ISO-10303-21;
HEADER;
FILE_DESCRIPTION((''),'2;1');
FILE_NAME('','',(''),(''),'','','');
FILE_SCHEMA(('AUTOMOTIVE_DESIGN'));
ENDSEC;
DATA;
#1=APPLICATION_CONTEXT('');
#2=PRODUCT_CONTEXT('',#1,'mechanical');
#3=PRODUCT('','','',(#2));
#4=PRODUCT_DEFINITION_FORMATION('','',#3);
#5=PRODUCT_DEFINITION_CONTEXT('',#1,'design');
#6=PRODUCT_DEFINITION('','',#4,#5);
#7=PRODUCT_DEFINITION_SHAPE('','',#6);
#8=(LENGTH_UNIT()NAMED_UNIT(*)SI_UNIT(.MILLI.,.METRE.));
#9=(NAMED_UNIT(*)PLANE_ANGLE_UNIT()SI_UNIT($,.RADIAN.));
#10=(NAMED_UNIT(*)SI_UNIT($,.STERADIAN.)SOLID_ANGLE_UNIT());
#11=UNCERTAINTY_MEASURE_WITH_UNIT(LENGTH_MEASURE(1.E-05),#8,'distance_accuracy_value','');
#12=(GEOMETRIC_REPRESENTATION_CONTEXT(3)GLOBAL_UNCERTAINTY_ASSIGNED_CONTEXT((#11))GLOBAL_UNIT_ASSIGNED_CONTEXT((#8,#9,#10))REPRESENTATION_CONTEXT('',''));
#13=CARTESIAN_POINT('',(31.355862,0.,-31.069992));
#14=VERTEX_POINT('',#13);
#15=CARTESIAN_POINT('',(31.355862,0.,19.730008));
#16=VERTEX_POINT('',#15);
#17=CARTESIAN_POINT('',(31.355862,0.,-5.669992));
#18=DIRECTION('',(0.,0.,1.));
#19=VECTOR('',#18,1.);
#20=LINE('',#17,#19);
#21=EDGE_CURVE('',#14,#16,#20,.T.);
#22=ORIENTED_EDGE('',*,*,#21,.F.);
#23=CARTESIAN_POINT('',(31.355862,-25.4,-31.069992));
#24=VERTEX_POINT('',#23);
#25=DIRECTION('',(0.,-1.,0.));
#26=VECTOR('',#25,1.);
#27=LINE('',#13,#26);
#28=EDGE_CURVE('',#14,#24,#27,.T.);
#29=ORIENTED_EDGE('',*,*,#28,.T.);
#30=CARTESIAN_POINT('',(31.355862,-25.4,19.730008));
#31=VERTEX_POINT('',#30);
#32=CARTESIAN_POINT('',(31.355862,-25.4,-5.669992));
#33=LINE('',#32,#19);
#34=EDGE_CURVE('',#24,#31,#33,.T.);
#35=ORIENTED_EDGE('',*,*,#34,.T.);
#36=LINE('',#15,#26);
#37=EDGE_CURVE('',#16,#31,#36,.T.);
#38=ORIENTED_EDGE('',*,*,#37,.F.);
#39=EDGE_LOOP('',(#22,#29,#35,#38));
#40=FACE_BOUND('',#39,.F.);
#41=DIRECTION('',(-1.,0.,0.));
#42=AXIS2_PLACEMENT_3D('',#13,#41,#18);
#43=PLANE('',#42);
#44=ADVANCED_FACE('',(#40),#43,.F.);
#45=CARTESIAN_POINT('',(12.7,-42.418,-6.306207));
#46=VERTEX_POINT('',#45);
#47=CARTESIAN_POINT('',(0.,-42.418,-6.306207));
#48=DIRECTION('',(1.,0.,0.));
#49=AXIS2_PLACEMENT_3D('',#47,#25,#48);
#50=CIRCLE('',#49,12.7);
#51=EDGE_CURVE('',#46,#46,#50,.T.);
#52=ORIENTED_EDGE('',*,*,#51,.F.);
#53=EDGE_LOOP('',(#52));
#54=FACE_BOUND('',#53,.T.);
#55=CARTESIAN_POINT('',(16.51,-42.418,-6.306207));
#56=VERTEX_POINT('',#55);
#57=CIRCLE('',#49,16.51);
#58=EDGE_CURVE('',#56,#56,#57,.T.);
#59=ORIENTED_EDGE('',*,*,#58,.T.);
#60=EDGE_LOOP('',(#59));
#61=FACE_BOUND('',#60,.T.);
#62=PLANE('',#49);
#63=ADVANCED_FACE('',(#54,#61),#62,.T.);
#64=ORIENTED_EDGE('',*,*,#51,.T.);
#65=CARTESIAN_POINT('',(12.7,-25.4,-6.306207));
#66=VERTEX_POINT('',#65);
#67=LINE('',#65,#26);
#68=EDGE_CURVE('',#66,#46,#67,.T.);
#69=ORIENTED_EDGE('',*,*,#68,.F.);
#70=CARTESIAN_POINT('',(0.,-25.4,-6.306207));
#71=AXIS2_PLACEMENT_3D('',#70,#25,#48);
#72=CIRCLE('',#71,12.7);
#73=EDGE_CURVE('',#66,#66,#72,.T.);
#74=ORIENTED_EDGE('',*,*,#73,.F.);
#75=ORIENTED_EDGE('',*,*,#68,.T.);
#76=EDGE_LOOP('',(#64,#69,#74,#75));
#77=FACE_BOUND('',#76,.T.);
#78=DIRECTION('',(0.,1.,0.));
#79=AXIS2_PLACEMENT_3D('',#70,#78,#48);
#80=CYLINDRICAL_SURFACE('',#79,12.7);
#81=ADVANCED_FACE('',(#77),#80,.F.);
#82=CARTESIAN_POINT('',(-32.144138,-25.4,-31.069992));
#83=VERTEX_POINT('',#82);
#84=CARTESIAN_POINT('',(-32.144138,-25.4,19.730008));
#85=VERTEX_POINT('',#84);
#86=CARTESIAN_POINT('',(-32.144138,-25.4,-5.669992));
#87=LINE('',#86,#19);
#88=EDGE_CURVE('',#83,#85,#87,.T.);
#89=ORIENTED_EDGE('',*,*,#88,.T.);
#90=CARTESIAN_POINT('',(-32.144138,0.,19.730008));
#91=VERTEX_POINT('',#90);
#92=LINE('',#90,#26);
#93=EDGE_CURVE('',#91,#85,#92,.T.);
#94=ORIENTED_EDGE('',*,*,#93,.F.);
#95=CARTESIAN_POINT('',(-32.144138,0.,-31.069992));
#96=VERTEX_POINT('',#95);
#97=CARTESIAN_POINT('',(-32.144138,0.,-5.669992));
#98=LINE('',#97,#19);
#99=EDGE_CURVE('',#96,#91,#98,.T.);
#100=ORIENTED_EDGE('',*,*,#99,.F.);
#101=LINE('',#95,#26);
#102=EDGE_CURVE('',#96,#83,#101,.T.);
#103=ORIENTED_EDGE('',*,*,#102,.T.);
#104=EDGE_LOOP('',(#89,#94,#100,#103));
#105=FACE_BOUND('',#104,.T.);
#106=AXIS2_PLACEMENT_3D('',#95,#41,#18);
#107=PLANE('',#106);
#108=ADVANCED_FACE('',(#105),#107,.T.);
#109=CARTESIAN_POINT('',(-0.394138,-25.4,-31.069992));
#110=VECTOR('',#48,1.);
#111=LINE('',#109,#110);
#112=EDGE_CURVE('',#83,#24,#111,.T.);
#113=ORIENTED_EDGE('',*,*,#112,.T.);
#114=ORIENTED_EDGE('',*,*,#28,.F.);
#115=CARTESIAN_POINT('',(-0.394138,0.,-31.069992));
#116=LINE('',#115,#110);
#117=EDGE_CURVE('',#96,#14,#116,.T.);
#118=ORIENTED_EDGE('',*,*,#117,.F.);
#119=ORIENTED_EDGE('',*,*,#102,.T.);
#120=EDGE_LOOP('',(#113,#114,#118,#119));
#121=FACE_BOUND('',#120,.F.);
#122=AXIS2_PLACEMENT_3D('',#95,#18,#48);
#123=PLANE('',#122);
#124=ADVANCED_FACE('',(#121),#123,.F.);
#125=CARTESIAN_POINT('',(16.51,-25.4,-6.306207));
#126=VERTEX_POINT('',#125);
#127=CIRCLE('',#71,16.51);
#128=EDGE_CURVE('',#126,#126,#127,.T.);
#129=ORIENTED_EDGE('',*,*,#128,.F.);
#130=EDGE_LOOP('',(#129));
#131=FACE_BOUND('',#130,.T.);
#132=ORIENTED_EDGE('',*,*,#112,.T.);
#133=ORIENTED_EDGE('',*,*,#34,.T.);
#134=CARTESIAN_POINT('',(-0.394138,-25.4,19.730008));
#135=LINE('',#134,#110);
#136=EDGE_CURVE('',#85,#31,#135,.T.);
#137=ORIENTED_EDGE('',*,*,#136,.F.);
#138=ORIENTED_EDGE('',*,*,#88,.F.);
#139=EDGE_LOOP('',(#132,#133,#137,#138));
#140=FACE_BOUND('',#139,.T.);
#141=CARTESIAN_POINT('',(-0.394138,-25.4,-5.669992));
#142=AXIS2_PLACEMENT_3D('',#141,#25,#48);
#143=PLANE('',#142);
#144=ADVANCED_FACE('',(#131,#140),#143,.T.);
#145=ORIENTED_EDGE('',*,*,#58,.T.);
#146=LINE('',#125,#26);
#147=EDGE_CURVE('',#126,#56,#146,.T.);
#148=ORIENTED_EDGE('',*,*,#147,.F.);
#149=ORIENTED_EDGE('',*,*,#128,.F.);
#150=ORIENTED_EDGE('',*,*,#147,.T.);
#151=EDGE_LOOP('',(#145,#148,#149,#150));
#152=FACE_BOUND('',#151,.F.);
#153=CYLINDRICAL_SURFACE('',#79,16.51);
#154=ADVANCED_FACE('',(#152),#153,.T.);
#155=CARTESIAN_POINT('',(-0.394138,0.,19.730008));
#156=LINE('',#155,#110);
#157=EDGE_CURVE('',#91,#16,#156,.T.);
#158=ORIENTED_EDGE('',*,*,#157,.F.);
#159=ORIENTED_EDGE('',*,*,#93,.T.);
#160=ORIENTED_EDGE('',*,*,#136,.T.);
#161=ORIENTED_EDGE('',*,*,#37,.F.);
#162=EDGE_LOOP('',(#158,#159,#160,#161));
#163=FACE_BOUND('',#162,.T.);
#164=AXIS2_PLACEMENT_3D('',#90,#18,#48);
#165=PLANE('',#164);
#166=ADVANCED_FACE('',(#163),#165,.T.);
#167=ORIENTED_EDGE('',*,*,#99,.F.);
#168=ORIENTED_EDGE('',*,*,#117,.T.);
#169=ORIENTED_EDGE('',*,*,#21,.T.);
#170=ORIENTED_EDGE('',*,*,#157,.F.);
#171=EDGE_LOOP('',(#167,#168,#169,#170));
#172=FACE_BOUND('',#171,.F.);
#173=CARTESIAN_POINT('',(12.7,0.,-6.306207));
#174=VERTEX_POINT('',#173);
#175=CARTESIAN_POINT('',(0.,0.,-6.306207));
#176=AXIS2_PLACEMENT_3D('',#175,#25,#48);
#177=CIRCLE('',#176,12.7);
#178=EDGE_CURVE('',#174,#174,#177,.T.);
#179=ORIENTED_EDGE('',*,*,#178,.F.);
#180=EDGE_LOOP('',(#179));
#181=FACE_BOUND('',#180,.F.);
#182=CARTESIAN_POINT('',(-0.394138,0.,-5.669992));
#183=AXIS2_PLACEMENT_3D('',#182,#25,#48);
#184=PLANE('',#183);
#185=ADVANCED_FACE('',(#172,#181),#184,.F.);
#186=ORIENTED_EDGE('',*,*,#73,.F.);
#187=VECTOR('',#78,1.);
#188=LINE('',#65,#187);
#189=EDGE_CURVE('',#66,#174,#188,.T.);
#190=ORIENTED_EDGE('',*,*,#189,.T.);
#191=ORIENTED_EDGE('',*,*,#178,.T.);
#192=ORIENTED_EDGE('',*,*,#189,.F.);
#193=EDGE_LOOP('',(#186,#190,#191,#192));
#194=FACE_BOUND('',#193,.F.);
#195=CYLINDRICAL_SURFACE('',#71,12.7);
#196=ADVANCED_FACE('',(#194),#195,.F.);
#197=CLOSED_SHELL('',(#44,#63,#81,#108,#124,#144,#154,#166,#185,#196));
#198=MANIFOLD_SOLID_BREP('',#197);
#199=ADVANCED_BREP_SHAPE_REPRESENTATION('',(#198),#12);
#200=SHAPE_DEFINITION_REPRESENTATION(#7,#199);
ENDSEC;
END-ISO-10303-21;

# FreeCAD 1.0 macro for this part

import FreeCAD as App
import Part
import Sketcher
from FreeCAD import Vector
Q = App.Units.Quantity


def add_polygon(sketch, points):
    """Adds a closed chain of lines whose ends are joined by coincident constraints."""
    first, n = sketch.GeometryCount, len(points)
    for a, b in zip(points, points[1:] + points[:1]):
        sketch.addGeometry(Part.LineSegment(App.Vector(*a, 0), App.Vector(*b, 0)), False)
    for i in range(n):
        sketch.addConstraint(Sketcher.Constraint("Coincident", first + i, 2, first + (i + 1) % n, 1))

doc = App.newDocument("Part")
body = doc.addObject("PartDesign::Body", "Body")

# Sketch on XZ plane
sketch1 = body.newObject("Sketcher::SketchObject", "Sketch")
sketch1.AttachmentSupport = (doc.getObject("XZ_Plane"), [""])
sketch1.MapMode = "FlatFace"
add_polygon(sketch1, [(-32, 20), (-32, -31), (31, -31), (31, 20)])  # lines 0-3
sketch1.addConstraint(Sketcher.Constraint("Vertical", 0))
sketch1.addConstraint(Sketcher.Constraint("Horizontal", 1))
sketch1.addConstraint(Sketcher.Constraint("Vertical", 2))
sketch1.addConstraint(Sketcher.Constraint("Horizontal", 3))
sketch1.addConstraint(Sketcher.Constraint("DistanceY", 0, 2, 0, 1, Q("2 in")))
sketch1.addConstraint(Sketcher.Constraint("DistanceX", 1, 1, 1, 2, Q("2.5 in")))
sketch1.addConstraint(Sketcher.Constraint("DistanceY", 0, 2, -1, 1, Q("31.069992 mm")))
sketch1.addConstraint(Sketcher.Constraint("DistanceX", 0, 2, -1, 1, Q("32.144138 mm")))
pad1 = body.newObject("PartDesign::Pad", "Pad")
pad1.Profile = sketch1
pad1.Length = Q("1 in")

# Sketch on XZ plane
sketch2 = body.newObject("Sketcher::SketchObject", "Sketch001")
sketch2.AttachmentSupport = (doc.getObject("XZ_Plane"), [""])
sketch2.MapMode = "FlatFace"
sketch2.AttachmentOffset = App.Placement(Vector(0, 0, 1 * 25.4), App.Rotation())
sketch2.addGeometry(Part.Circle(Vector(0, -6, 0), Vector(0, 0, 1), 13), False)
sketch2.addConstraint(Sketcher.Constraint("PointOnObject", 0, 3, -2))
sketch2.addConstraint(Sketcher.Constraint("Diameter", 0, Q("1 in")))
sketch2.addConstraint(Sketcher.Constraint("DistanceY", 0, 3, -1, 1, Q("6.306207 mm")))
pocket1 = body.newObject("PartDesign::Pocket", "Pocket")
pocket1.Profile = sketch2
pocket1.Type = "ThroughAll"

# Sketch on XZ plane
sketch3 = body.newObject("Sketcher::SketchObject", "Sketch002")
sketch3.AttachmentSupport = (doc.getObject("XZ_Plane"), [""])
sketch3.MapMode = "FlatFace"
sketch3.AttachmentOffset = App.Placement(Vector(0, 0, 1 * 25.4), App.Rotation())
sketch3.addGeometry(Part.Circle(Vector(0, -6, 0), Vector(0, 0, 1), 17), False)
sketch3.addGeometry(Part.Circle(Vector(0, -6, 0), Vector(0, 0, 1), 13), False)
sketch3.addConstraint(Sketcher.Constraint("Coincident", 1, 3, 0, 3))
sketch3.addConstraint(Sketcher.Constraint("PointOnObject", 0, 3, -2))
sketch3.addConstraint(Sketcher.Constraint("Diameter", 1, Q("1 in")))
sketch3.addConstraint(Sketcher.Constraint("Diameter", 0, Q("1.3 in")))
sketch3.addConstraint(Sketcher.Constraint("DistanceY", 0, 3, -1, 1, Q("6.306207 mm")))
pad2 = body.newObject("PartDesign::Pad", "Pad001")
pad2.Profile = sketch3
pad2.Length = Q("0.67 in")

doc.recompute()
